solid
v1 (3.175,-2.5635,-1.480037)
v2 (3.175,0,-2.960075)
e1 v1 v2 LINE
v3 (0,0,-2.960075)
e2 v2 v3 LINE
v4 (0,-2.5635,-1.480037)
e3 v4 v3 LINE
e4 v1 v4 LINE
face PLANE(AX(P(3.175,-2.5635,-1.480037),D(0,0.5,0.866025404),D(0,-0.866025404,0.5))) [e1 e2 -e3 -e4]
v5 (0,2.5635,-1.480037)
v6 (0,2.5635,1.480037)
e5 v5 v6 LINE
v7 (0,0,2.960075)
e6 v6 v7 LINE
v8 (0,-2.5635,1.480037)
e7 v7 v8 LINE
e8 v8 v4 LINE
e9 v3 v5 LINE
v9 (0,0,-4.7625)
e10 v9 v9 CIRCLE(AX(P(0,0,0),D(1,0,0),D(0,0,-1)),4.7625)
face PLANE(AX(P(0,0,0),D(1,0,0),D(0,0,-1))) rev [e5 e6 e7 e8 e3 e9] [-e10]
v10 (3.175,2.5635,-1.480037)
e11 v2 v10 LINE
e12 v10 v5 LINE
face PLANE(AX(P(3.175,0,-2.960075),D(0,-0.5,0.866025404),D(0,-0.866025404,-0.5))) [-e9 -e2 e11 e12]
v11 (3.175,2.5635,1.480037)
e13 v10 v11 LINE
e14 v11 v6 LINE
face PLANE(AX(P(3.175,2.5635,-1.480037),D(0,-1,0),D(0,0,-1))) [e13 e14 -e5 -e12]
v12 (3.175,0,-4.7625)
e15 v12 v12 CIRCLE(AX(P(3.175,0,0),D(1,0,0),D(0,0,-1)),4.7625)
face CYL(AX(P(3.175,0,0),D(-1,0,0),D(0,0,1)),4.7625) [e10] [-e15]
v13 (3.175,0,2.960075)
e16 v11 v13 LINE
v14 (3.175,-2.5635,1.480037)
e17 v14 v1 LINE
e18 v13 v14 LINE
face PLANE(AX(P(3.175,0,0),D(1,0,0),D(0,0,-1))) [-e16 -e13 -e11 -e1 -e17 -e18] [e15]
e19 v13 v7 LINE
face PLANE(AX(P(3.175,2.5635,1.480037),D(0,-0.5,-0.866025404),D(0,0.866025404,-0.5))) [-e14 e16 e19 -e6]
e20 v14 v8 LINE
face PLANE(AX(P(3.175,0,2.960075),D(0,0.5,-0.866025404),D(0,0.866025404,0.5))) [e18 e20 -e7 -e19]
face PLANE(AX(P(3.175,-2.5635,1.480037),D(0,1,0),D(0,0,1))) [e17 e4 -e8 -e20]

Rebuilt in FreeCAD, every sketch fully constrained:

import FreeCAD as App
import Part
import Sketcher

V = App.Vector
Q = App.Units.Quantity

doc = App.newDocument("Part")
params = doc.addObject("Spreadsheet::Sheet", "Params")
for row, (alias, value) in enumerate([
    ("sketch1_diameter", "0.375 in"),
    ("pad1_length", "0.125 in"),
], start=1):
    params.set(f"A{row}", alias)
    params.set(f"B{row}", "=" + value)
    params.setAlias(f"B{row}", alias)

body = doc.addObject("PartDesign::Body", "Body")

sketch1 = body.newObject("Sketcher::SketchObject", "Sketch")
sketch1.AttachmentSupport = (doc.getObject("YZ_Plane"), [""])
sketch1.MapMode = "FlatFace"
sketch1.addGeometry(Part.Circle(V(0, 0, 0), V(0, 0, 1), 4.8), False)
sketch1.addGeometry(Part.LineSegment(V(2.6, 1.5, 0), V(2.6, -1.5, 0)), False)
sketch1.addGeometry(Part.LineSegment(V(2.6, -1.5, 0), V(0, -3, 0)), False)
sketch1.addGeometry(Part.LineSegment(V(0, -3, 0), V(-2.6, -1.5, 0)), False)
sketch1.addGeometry(Part.LineSegment(V(-2.6, -1.5, 0), V(-2.6, 1.5, 0)), False)
sketch1.addGeometry(Part.LineSegment(V(-2.6, 1.5, 0), V(0, 3, 0)), False)
sketch1.addGeometry(Part.LineSegment(V(0, 3, 0), V(2.6, 1.5, 0)), False)
sketch1.addConstraint(Sketcher.Constraint("Coincident", 1, 2, 2, 1))
sketch1.addConstraint(Sketcher.Constraint("Coincident", 2, 2, 3, 1))
sketch1.addConstraint(Sketcher.Constraint("Coincident", 3, 2, 4, 1))
sketch1.addConstraint(Sketcher.Constraint("Coincident", 4, 2, 5, 1))
sketch1.addConstraint(Sketcher.Constraint("Coincident", 5, 2, 6, 1))
sketch1.addConstraint(Sketcher.Constraint("Coincident", 6, 2, 1, 1))
sketch1.addConstraint(Sketcher.Constraint("Vertical", 1))
sketch1.addConstraint(Sketcher.Constraint("Vertical", 4))
sketch1.addConstraint(Sketcher.Constraint("Coincident", 0, 3, -1, 1))
sketch1.addConstraint(Sketcher.Constraint("Symmetric", 1, 2, 4, 2, -1, 1))
sketch1.addConstraint(Sketcher.Constraint("Symmetric", 2, 2, 5, 2, -1, 1))
sketch1.addConstraint(Sketcher.Constraint("PointOnObject", 2, 2, -2))
sketch1.addConstraint(Sketcher.Constraint("Parallel", 3, 6))
sketch1.addConstraint(Sketcher.Constraint("Horizontal", 1, 2, 3, 2))
sketch1.addConstraint(Sketcher.Constraint("Diameter", 0, Q("0.375 in")))
sketch1.addConstraint(Sketcher.Constraint("Angle", 2, Q("-150 deg")))
sketch1.addConstraint(Sketcher.Constraint("DistanceX", -1, 1, 1, 2, Q("2.5635 mm")))
sketch1.addConstraint(Sketcher.Constraint("DistanceY", 1, 2, 1, 1, Q("2.960075 mm")))
sketch1.setExpression("Constraints[14]", "Params.sketch1_diameter")
pad1 = body.newObject("PartDesign::Pad", "Pad")
pad1.Profile = sketch1
pad1.setExpression("Length", "Params.pad1_length")

doc.recompute()
